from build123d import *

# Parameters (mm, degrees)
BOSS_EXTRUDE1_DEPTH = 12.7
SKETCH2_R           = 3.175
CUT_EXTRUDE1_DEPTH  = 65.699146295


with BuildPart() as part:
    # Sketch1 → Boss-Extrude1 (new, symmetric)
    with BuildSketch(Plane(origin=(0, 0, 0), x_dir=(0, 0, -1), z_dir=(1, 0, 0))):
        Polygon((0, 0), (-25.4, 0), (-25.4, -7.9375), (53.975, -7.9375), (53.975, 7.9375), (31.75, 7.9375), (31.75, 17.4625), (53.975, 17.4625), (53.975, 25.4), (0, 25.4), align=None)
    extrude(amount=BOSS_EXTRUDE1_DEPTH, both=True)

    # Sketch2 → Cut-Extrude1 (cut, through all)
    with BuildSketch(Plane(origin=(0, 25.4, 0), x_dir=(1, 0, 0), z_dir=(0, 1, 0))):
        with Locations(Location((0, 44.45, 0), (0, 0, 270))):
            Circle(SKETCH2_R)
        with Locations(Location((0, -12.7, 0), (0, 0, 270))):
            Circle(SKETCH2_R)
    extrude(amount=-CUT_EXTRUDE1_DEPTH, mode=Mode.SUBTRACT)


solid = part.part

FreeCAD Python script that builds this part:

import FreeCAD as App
import Part
import Sketcher
Q = App.Units.Quantity


def add_polygon(sketch, points):
    """Adds a closed chain of lines whose ends are joined by coincident constraints."""
    first, n = sketch.GeometryCount, len(points)
    for a, b in zip(points, points[1:] + points[:1]):
        sketch.addGeometry(Part.LineSegment(App.Vector(*a, 0), App.Vector(*b, 0)), False)
    for i in range(n):
        sketch.addConstraint(Sketcher.Constraint("Coincident", first + i, 2, first + (i + 1) % n, 1))

doc = App.newDocument("Part")
params = doc.addObject("Spreadsheet::Sheet", "Params")
for row, (alias, value) in enumerate([
    ("sketch1_width", "1 in"),
    ("sketch1_width2", "0.3125 in"),
    ("sketch1_width3", "0.625 in"),
    ("sketch1_height", "3.125 in"),
    ("sketch1_height2", "0.875 in"),
    ("pad1_length", "1 in"),
    ("sketch2_diameter", "0.25 in"),
], start=1):
    params.set(f"A{row}", alias)
    params.set(f"B{row}", "=" + value)
    params.setAlias(f"B{row}", alias)

body = doc.addObject("PartDesign::Body", "Body")

# Sketch on YZ plane
sketch1 = body.newObject("Sketcher::SketchObject", "Sketch")
sketch1.AttachmentSupport = (doc.getObject("YZ_Plane"), [""])
sketch1.MapMode = "FlatFace"
add_polygon(sketch1, [(0, 0), (0, 25.4), (-7.9375, 25.4), (-7.9375, -53.975), (7.9375, -53.975), (7.9375, -31.75), (17.4625, -31.75), (17.4625, -53.975), (25.4, -53.975), (25.4, 0)])  # lines 0-9
sketch1.addConstraint([
    Sketcher.Constraint("Vertical", 0),
    Sketcher.Constraint("Horizontal", 1),
    Sketcher.Constraint("Vertical", 2),
    Sketcher.Constraint("Horizontal", 3),
    Sketcher.Constraint("Vertical", 4),
    Sketcher.Constraint("Horizontal", 5),
    Sketcher.Constraint("Vertical", 6),
    Sketcher.Constraint("Horizontal", 7),
    Sketcher.Constraint("Vertical", 8),
    Sketcher.Constraint("Horizontal", 9),
    Sketcher.Constraint("Coincident", 9, 2, -1, 1),
    Sketcher.Constraint("Horizontal", 3, 2, 6, 2),
    Sketcher.Constraint("Equal", 1, 7),
    Sketcher.Constraint("Equal", 9, 0),
    Sketcher.Constraint("DistanceX", 9, 2, 9, 1, Q("1 in")),
    Sketcher.Constraint("DistanceX", 1, 2, 1, 1, Q("0.3125 in")),
    Sketcher.Constraint("DistanceX", 3, 1, 3, 2, Q("0.625 in")),
    Sketcher.Constraint("DistanceY", 2, 2, 2, 1, Q("3.125 in")),
    Sketcher.Constraint("DistanceY", 4, 1, 4, 2, Q("0.875 in")),
])
sketch1.setExpression("Constraints[24]", "Params.sketch1_width")
sketch1.setExpression("Constraints[25]", "Params.sketch1_width2")
sketch1.setExpression("Constraints[26]", "Params.sketch1_width3")
sketch1.setExpression("Constraints[27]", "Params.sketch1_height")
sketch1.setExpression("Constraints[28]", "Params.sketch1_height2")
pad1 = body.newObject("PartDesign::Pad", "Pad")
pad1.Profile = sketch1
pad1.setExpression("Length", "Params.pad1_length")
pad1.Midplane = True

# Sketch on XZ plane
sketch2 = body.newObject("Sketcher::SketchObject", "Sketch001")
sketch2.AttachmentSupport = (doc.getObject("XZ_Plane"), [""])
sketch2.MapMode = "FlatFace"
sketch2.AttachmentOffset = App.Placement(App.Vector(0, 0, -1 * 25.4), App.Rotation())
sketch2.addGeometry([
    Part.Circle(App.Vector(0, -44.45, 0), App.Vector(0, 0, 1), 3.175),
    Part.Circle(App.Vector(0, 12.7, 0), App.Vector(0, 0, 1), 3.175),
], False)
sketch2.addConstraint([
    Sketcher.Constraint("Equal", 0, 1),
    Sketcher.Constraint("PointOnObject", 0, 3, -2),
    Sketcher.Constraint("PointOnObject", 1, 3, -2),
    Sketcher.Constraint("Diameter", 0, Q("0.25 in")),
    Sketcher.Constraint("DistanceY", -1, 1, 1, 3, Q("0.5 in")),
    Sketcher.Constraint("DistanceY", 0, 3, -1, 1, Q("1.75 in")),
])
sketch2.setExpression("Constraints[3]", "Params.sketch2_diameter")
pocket1 = body.newObject("PartDesign::Pocket", "Pocket")
pocket1.Profile = sketch2
pocket1.Type = "ThroughAll"
pocket1.Reversed = True

doc.recompute()
